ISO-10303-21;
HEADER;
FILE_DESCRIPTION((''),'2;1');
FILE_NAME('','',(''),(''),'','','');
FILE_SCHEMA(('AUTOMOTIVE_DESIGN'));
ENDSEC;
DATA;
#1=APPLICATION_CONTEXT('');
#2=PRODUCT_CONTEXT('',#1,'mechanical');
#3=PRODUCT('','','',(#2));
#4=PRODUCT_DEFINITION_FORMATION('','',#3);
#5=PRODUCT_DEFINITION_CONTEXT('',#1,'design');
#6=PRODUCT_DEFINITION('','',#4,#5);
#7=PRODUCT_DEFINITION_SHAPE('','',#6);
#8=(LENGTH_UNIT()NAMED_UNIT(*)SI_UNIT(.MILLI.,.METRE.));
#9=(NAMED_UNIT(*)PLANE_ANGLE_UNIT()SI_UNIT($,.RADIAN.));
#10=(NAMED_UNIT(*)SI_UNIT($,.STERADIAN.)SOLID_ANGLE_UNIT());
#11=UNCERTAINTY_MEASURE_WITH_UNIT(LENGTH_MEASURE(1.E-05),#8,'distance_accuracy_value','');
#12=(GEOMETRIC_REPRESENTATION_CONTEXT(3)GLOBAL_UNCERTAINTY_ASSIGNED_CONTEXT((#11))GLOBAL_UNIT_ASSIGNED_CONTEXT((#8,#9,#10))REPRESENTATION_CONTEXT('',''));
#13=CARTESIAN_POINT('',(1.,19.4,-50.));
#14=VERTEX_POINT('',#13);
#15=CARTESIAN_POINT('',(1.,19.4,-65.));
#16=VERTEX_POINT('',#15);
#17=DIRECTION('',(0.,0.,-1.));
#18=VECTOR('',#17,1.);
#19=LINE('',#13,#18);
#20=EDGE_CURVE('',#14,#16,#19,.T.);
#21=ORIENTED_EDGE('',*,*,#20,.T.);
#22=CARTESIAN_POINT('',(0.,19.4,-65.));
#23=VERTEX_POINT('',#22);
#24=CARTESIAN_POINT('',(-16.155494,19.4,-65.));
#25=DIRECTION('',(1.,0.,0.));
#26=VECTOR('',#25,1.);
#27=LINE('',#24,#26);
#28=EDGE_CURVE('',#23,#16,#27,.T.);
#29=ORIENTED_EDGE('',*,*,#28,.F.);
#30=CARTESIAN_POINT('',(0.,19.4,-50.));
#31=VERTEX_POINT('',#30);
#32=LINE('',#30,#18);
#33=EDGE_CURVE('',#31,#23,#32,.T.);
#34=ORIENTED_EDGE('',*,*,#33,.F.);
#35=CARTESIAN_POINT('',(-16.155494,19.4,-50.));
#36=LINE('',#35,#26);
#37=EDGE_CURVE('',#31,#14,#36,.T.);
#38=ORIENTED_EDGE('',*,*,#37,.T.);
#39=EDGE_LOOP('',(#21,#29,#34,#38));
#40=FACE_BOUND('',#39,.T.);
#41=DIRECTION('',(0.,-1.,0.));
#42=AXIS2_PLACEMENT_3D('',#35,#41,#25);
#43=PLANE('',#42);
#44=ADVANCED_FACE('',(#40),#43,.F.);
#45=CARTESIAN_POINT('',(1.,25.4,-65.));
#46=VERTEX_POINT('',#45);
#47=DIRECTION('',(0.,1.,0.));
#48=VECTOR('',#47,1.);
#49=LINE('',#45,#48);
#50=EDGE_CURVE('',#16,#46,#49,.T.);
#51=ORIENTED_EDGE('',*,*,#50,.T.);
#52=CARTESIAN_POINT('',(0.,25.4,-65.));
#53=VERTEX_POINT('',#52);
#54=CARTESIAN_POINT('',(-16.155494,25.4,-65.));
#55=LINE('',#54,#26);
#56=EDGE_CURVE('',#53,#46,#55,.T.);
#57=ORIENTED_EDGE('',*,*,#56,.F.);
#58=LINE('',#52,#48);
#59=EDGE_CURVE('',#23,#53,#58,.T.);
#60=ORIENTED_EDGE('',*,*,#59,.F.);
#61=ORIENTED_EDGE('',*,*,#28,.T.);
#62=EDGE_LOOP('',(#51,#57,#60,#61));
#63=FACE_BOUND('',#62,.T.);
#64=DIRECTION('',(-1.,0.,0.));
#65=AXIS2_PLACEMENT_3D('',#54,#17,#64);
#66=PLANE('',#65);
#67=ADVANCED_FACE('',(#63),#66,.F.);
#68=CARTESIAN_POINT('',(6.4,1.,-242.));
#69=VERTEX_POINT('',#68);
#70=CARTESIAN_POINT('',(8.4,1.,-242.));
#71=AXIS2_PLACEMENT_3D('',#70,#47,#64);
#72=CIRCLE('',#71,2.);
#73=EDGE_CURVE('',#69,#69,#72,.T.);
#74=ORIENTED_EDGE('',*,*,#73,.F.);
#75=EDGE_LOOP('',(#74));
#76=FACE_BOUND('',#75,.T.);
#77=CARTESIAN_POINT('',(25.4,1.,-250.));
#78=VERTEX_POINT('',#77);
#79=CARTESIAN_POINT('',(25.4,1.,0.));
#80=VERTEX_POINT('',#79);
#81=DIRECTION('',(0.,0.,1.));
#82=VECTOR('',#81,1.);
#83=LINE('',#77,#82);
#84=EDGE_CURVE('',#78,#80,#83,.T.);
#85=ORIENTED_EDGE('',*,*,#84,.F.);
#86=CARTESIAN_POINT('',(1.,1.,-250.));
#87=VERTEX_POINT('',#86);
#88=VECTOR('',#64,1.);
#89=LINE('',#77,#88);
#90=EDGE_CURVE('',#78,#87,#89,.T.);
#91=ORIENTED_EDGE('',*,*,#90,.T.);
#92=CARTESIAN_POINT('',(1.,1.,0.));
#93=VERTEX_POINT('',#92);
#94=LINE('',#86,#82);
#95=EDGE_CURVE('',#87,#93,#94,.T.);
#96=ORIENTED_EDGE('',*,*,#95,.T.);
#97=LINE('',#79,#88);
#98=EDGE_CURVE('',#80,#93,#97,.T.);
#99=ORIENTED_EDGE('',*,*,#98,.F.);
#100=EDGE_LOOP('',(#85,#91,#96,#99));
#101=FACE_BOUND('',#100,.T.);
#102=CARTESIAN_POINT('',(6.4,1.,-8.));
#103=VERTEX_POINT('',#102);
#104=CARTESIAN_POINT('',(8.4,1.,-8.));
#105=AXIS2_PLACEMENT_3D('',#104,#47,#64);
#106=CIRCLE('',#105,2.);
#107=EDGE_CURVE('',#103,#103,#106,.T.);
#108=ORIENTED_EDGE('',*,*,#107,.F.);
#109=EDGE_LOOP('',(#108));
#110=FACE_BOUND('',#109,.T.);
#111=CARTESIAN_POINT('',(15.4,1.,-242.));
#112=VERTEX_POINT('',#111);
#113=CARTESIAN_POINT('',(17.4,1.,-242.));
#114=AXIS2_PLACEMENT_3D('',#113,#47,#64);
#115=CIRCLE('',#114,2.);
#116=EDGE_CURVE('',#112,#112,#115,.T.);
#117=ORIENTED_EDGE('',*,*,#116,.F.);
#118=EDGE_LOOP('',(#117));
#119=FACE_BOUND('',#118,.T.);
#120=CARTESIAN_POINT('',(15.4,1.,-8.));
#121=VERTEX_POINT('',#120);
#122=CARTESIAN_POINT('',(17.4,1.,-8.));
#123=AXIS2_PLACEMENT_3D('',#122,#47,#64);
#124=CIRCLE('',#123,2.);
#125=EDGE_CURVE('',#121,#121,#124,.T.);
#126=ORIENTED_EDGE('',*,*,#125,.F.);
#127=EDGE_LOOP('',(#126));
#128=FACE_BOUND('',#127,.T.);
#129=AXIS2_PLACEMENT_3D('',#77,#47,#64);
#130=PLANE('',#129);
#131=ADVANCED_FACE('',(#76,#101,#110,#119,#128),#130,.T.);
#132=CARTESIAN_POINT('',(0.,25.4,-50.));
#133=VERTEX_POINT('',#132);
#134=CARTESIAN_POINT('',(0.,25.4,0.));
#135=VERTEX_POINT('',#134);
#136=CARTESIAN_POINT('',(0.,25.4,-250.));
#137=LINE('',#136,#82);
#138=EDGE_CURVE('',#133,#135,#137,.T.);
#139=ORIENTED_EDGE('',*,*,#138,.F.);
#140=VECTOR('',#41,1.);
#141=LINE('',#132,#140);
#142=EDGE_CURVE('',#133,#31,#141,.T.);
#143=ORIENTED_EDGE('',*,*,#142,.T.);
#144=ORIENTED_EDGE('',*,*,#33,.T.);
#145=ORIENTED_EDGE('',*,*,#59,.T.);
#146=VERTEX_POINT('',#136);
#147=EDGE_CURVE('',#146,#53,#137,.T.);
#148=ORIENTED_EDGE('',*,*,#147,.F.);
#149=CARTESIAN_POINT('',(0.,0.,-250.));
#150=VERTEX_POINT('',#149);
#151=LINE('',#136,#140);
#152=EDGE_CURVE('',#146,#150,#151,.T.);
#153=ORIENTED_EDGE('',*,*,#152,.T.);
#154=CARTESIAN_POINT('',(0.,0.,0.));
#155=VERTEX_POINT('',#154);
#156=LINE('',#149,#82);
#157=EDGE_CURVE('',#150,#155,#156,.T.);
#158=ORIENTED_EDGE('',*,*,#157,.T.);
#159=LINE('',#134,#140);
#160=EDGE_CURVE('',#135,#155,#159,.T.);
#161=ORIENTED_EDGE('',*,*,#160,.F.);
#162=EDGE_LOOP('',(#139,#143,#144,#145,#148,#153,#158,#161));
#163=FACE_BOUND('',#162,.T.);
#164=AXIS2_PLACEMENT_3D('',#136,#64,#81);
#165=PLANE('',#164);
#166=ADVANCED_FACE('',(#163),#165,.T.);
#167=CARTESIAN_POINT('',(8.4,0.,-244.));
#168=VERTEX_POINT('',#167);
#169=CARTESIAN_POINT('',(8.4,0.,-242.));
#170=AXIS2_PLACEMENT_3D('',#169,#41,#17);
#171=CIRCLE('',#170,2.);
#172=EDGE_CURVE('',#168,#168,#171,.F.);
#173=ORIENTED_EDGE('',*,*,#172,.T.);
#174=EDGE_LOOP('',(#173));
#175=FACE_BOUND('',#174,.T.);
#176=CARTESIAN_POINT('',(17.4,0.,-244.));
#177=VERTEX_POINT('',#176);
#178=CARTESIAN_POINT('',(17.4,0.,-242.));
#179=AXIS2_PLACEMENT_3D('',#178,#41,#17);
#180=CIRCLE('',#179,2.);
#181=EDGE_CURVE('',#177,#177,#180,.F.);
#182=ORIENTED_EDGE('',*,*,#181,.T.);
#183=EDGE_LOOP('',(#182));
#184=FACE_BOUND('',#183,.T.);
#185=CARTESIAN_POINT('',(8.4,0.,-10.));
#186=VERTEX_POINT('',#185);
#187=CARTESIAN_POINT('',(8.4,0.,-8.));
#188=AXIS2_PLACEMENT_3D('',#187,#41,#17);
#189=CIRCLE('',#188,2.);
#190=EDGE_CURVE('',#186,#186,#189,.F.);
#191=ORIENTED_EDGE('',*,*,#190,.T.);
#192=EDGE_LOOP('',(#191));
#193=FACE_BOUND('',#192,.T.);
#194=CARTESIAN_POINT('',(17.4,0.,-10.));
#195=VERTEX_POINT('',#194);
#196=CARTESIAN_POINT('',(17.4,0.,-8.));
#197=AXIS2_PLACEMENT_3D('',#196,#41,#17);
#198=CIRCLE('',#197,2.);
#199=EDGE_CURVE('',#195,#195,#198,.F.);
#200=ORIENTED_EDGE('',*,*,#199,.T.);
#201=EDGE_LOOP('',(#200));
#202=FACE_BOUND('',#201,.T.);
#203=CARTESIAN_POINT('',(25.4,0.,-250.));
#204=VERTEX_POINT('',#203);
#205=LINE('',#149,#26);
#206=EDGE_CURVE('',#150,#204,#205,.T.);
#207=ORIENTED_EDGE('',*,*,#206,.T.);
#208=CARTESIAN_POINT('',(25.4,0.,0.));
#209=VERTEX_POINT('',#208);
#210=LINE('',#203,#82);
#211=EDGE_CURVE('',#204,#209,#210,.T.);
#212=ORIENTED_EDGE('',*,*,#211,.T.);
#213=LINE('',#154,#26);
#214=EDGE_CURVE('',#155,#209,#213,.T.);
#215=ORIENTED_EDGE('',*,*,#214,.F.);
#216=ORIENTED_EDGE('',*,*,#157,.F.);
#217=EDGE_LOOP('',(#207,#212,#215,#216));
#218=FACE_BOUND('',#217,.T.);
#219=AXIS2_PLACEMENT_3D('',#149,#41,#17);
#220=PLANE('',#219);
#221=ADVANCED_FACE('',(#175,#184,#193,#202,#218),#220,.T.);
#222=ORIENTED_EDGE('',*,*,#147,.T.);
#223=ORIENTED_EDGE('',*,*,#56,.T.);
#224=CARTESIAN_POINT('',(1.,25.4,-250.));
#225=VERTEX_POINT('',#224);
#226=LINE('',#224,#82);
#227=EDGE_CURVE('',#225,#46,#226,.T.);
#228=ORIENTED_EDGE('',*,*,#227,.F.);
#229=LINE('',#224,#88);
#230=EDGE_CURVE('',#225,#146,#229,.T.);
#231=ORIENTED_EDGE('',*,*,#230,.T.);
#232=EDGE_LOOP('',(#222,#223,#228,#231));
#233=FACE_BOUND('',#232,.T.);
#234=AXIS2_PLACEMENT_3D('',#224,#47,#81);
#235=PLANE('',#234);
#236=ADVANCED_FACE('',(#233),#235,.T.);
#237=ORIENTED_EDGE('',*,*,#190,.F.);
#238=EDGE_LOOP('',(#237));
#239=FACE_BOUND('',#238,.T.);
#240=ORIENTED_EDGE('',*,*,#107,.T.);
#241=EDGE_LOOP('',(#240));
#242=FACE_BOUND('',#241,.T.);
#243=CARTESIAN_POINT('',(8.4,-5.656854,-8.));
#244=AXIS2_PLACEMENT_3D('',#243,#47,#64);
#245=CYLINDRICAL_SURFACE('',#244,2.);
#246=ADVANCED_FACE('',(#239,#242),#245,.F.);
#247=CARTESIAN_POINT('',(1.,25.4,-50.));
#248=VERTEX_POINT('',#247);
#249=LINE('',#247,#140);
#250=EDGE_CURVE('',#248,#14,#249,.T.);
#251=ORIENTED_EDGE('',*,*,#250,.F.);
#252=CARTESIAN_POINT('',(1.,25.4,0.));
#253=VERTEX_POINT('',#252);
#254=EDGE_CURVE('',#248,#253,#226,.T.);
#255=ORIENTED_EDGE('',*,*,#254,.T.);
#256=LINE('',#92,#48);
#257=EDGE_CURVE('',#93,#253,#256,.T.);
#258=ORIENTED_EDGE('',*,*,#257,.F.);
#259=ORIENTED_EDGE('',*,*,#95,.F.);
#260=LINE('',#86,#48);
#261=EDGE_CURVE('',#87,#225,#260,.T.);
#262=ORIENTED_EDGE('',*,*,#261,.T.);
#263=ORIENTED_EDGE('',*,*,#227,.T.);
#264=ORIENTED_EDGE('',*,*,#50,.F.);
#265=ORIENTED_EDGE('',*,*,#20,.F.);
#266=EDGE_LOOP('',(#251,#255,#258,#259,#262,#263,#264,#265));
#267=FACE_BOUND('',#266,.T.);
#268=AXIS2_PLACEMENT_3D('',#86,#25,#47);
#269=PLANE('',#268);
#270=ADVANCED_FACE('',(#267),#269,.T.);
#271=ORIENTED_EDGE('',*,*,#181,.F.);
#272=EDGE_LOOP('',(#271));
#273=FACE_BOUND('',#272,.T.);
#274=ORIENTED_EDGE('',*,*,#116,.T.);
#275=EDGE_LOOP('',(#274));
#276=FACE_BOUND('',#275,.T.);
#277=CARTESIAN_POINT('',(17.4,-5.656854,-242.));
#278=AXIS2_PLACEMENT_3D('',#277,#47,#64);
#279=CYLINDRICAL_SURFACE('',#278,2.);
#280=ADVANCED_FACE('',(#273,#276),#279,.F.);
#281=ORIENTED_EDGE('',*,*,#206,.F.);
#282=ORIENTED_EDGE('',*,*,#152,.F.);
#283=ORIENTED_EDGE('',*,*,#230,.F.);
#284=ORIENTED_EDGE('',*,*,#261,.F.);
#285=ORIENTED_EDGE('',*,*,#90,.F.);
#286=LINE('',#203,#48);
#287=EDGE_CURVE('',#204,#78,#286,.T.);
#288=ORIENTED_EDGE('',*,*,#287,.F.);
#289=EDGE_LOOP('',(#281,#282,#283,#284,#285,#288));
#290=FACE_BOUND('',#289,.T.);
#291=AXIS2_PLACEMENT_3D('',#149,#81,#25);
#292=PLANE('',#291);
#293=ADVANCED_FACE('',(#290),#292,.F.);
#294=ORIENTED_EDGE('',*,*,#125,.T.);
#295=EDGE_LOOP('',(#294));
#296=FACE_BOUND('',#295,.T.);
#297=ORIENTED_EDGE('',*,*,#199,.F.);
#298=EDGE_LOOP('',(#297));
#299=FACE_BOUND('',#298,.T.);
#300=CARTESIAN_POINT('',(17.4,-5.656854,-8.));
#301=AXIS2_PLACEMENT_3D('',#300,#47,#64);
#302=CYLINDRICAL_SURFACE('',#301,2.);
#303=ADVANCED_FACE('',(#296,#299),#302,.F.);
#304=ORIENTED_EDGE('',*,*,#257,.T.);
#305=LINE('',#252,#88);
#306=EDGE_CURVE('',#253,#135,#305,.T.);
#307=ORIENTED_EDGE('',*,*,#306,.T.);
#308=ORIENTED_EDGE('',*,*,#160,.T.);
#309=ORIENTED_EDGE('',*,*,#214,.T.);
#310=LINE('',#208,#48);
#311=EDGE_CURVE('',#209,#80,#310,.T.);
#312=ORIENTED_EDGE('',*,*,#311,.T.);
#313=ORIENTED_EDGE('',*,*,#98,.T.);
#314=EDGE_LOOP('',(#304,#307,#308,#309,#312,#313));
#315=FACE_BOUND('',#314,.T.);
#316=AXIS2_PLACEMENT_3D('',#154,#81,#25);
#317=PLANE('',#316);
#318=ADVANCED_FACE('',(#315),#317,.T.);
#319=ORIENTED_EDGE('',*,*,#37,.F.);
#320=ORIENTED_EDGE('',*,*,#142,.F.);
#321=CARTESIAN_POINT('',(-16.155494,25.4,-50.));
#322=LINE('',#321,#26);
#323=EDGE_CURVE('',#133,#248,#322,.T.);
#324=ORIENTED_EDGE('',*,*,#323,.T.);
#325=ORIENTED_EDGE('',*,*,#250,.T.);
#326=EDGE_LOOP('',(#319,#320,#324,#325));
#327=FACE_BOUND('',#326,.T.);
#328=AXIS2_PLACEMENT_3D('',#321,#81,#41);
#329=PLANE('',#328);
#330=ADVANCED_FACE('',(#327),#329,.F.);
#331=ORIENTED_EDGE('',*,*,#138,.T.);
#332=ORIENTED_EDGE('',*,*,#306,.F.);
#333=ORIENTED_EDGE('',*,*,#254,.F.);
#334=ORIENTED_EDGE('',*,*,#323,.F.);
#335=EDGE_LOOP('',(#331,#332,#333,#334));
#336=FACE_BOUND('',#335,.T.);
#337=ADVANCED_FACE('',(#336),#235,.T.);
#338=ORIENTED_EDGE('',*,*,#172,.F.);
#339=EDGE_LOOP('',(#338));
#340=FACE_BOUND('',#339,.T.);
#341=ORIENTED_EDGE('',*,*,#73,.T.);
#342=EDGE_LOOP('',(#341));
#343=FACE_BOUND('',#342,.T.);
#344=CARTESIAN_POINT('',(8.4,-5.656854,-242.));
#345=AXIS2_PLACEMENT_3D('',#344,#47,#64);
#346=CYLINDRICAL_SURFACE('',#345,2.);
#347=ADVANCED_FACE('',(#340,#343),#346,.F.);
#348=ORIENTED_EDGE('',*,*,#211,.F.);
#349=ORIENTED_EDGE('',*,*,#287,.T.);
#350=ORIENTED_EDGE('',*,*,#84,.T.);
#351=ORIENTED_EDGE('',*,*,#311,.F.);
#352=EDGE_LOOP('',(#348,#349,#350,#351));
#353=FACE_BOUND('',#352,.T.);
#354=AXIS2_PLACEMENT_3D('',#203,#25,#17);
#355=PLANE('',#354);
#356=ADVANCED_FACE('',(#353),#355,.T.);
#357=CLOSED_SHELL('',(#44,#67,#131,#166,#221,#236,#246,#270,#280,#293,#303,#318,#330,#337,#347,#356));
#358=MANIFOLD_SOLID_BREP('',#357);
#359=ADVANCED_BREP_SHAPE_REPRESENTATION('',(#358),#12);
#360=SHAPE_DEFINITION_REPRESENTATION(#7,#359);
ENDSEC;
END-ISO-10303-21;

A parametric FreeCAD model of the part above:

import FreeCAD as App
import Part
import Sketcher

doc = App.newDocument("Part")
params = doc.addObject("Spreadsheet::Sheet", "Params")
for row, (alias, value) in enumerate([
    ("sketch1_width", "1 mm"),
    ("sketch1_width2", "25.4 mm"),
    ("pad1_length", "250 mm"),
    ("sketch2_diameter", "4 mm"),
    ("pocket1_length", "1 mm"),
    ("sketch3_width", "6 mm"),
    ("sketch3_height", "15 mm"),
    ("pocket2_length", "1 mm"),
], start=1):
    params.set(f"A{row}", alias)
    params.set(f"B{row}", "=" + value)
    params.setAlias(f"B{row}", alias)

body = doc.addObject("PartDesign::Body", "Body")

sketch1 = body.newObject("Sketcher::SketchObject", "Sketch")
sketch1.AttachmentSupport = (doc.getObject("XY_Plane"), [""])
sketch1.MapMode = "FlatFace"
sketch1.addGeometry(Part.LineSegment(App.Vector(0, 0, 0), App.Vector(25.4, 0, 0)), False)
sketch1.addGeometry(Part.LineSegment(App.Vector(25.4, 0, 0), App.Vector(25.4, 1, 0)), False)
sketch1.addGeometry(Part.LineSegment(App.Vector(25.4, 1, 0), App.Vector(1, 1, 0)), False)
sketch1.addGeometry(Part.LineSegment(App.Vector(1, 1, 0), App.Vector(1, 25.4, 0)), False)
sketch1.addGeometry(Part.LineSegment(App.Vector(1, 25.4, 0), App.Vector(0, 25.4, 0)), False)
sketch1.addGeometry(Part.LineSegment(App.Vector(0, 25.4, 0), App.Vector(0, 0, 0)), False)
sketch1.addConstraint(Sketcher.Constraint("Coincident", 0, 2, 1, 1))
sketch1.addConstraint(Sketcher.Constraint("Coincident", 1, 2, 2, 1))
sketch1.addConstraint(Sketcher.Constraint("Coincident", 2, 2, 3, 1))
sketch1.addConstraint(Sketcher.Constraint("Coincident", 3, 2, 4, 1))
sketch1.addConstraint(Sketcher.Constraint("Coincident", 4, 2, 5, 1))
sketch1.addConstraint(Sketcher.Constraint("Coincident", 5, 2, 0, 1))
sketch1.addConstraint(Sketcher.Constraint("Horizontal", 0))
sketch1.addConstraint(Sketcher.Constraint("Vertical", 1))
sketch1.addConstraint(Sketcher.Constraint("Horizontal", 2))
sketch1.addConstraint(Sketcher.Constraint("Vertical", 3))
sketch1.addConstraint(Sketcher.Constraint("Horizontal", 4))
sketch1.addConstraint(Sketcher.Constraint("Vertical", 5))
sketch1.addConstraint(Sketcher.Constraint("Coincident", 5, 2, -1, 1))
sketch1.addConstraint(Sketcher.Constraint("Equal", 4, 1))
sketch1.addConstraint(Sketcher.Constraint("Equal", 2, 3))
sketch1.addConstraint(Sketcher.Constraint("DistanceX", 4, 2, 4, 1, 1.0))
sketch1.addConstraint(Sketcher.Constraint("DistanceX", 0, 1, 0, 2, 25.4))
sketch1.setExpression("Constraints[15]", "Params.sketch1_width")
sketch1.setExpression("Constraints[16]", "Params.sketch1_width2")
pad1 = body.newObject("PartDesign::Pad", "Pad")
pad1.Profile = sketch1
pad1.setExpression("Length", "Params.pad1_length")
pad1.Reversed = True

sketch2 = body.newObject("Sketcher::SketchObject", "Sketch001")
sketch2.AttachmentSupport = (doc.getObject("XZ_Plane"), [""])
sketch2.MapMode = "FlatFace"
sketch2.AttachmentOffset = App.Placement(App.Vector(0, 0, -1), App.Rotation())
sketch2.addGeometry(Part.Circle(App.Vector(8.4, -8, 0), App.Vector(0, 0, 1), 2), False)
sketch2.addGeometry(Part.Circle(App.Vector(17.4, -8, 0), App.Vector(0, 0, 1), 2), False)
sketch2.addGeometry(Part.Circle(App.Vector(8.4, -242, 0), App.Vector(0, 0, 1), 2), False)
sketch2.addGeometry(Part.Circle(App.Vector(17.4, -242, 0), App.Vector(0, 0, 1), 2), False)
sketch2.addConstraint(Sketcher.Constraint("Equal", 0, 1))
sketch2.addConstraint(Sketcher.Constraint("Equal", 1, 2))
sketch2.addConstraint(Sketcher.Constraint("Equal", 2, 3))
sketch2.addConstraint(Sketcher.Constraint("Horizontal", 0, 3, 1, 3))
sketch2.addConstraint(Sketcher.Constraint("Horizontal", 2, 3, 3, 3))
sketch2.addConstraint(Sketcher.Constraint("Vertical", 0, 3, 2, 3))
sketch2.addConstraint(Sketcher.Constraint("Vertical", 1, 3, 3, 3))
sketch2.addConstraint(Sketcher.Constraint("Diameter", 0, 4.0))
sketch2.addConstraint(Sketcher.Constraint("DistanceY", 0, 3, -1, 1, 8.0))
sketch2.addConstraint(Sketcher.Constraint("DistanceY", 2, 3, -1, 1, 242.0))
sketch2.addConstraint(Sketcher.Constraint("DistanceX", 0, 3, 1, 3, 9.0))
sketch2.addConstraint(Sketcher.Constraint("DistanceX", -1, 1, 0, 3, 8.4))
sketch2.setExpression("Constraints[7]", "Params.sketch2_diameter")
pocket1 = body.newObject("PartDesign::Pocket", "Pocket")
pocket1.Profile = sketch2
pocket1.setExpression("Length", "Params.pocket1_length")
pocket1.Reversed = True

sketch3 = body.newObject("Sketcher::SketchObject", "Sketch002")
sketch3.AttachmentSupport = (doc.getObject("YZ_Plane"), [""])
sketch3.MapMode = "FlatFace"
sketch3.AttachmentOffset = App.Placement(App.Vector(0, 0, 1), App.Rotation())
sketch3.addGeometry(Part.LineSegment(App.Vector(25, -50, 0), App.Vector(19, -50, 0)), False)
sketch3.addGeometry(Part.LineSegment(App.Vector(19, -50, 0), App.Vector(19, -65, 0)), False)
sketch3.addGeometry(Part.LineSegment(App.Vector(19, -65, 0), App.Vector(25, -65, 0)), False)
sketch3.addGeometry(Part.LineSegment(App.Vector(25, -65, 0), App.Vector(25, -50, 0)), False)
sketch3.addConstraint(Sketcher.Constraint("Coincident", 0, 2, 1, 1))
sketch3.addConstraint(Sketcher.Constraint("Coincident", 1, 2, 2, 1))
sketch3.addConstraint(Sketcher.Constraint("Coincident", 2, 2, 3, 1))
sketch3.addConstraint(Sketcher.Constraint("Coincident", 3, 2, 0, 1))
sketch3.addConstraint(Sketcher.Constraint("Horizontal", 0))
sketch3.addConstraint(Sketcher.Constraint("Vertical", 1))
sketch3.addConstraint(Sketcher.Constraint("Horizontal", 2))
sketch3.addConstraint(Sketcher.Constraint("Vertical", 3))
sketch3.addConstraint(Sketcher.Constraint("DistanceX", 0, 2, 0, 1, 6.0))
sketch3.addConstraint(Sketcher.Constraint("DistanceY", 1, 2, 1, 1, 15.0))
sketch3.addConstraint(Sketcher.Constraint("DistanceY", 0, 2, -1, 1, 50.0))
sketch3.addConstraint(Sketcher.Constraint("DistanceX", -1, 1, 0, 2, 19.4))
sketch3.setExpression("Constraints[8]", "Params.sketch3_width")
sketch3.setExpression("Constraints[9]", "Params.sketch3_height")
pocket2 = body.newObject("PartDesign::Pocket", "Pocket001")
pocket2.Profile = sketch3
pocket2.setExpression("Length", "Params.pocket2_length")

doc.recompute()
